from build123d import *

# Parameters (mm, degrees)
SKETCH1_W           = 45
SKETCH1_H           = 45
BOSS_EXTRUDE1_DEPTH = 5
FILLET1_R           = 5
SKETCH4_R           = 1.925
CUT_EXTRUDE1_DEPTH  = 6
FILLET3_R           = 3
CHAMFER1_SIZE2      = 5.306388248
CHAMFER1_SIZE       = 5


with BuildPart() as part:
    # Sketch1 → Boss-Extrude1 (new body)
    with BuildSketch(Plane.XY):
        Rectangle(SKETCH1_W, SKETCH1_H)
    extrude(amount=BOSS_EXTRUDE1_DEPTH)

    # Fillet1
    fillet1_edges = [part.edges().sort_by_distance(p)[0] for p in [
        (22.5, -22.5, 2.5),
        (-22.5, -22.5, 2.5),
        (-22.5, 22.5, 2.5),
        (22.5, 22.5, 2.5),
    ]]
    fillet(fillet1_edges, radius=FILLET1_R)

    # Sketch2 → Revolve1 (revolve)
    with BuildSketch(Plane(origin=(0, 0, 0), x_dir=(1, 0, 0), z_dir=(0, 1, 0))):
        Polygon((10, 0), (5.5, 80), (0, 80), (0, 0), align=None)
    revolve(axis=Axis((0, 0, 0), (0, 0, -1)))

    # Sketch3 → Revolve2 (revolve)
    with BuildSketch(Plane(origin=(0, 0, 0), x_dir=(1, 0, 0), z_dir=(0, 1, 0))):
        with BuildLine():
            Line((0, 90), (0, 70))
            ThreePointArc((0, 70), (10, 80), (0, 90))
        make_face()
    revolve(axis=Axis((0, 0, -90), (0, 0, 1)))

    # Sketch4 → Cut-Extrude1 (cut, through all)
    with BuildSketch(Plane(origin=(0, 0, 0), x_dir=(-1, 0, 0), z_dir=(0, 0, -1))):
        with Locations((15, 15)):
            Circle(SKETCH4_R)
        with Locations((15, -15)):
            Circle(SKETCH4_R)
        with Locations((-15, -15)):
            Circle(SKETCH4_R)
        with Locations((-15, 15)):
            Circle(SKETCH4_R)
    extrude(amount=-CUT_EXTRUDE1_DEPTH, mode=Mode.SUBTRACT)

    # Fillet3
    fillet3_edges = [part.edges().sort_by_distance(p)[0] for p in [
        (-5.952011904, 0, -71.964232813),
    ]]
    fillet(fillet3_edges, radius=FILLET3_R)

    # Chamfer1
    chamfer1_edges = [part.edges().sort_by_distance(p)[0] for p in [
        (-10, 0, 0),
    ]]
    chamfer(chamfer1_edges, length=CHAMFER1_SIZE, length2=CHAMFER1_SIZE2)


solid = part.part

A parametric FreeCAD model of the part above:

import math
import FreeCAD as App
import Part
import Sketcher
from FreeCAD import Vector
Q = App.Units.Quantity


def edges_at(feature, points):
    """Names of the edges that pass closest to the given points."""
    edges = feature.Shape.Edges
    near = lambda p: min(range(len(edges)), key=lambda i: edges[i].distToShape(Part.Vertex(*p))[0])
    return sorted({f"Edge{near(p) + 1}" for p in points})

doc = App.newDocument("Part")
body = doc.addObject("PartDesign::Body", "Body")

sketch1 = body.newObject("Sketcher::SketchObject", "Sketch")
sketch1.AttachmentSupport = (doc.getObject("XY_Plane"), [""])
sketch1.MapMode = "FlatFace"
sketch1.addGeometry([
    Part.LineSegment(Vector(-22.5, 22.5, 0), Vector(-22.5, -22.5, 0)),
    Part.LineSegment(Vector(-22.5, -22.5, 0), Vector(22.5, -22.5, 0)),
    Part.LineSegment(Vector(22.5, -22.5, 0), Vector(22.5, 22.5, 0)),
    Part.LineSegment(Vector(22.5, 22.5, 0), Vector(-22.5, 22.5, 0)),
], False)
sketch1.addConstraint([
    Sketcher.Constraint("Coincident", 0, 2, 1, 1),
    Sketcher.Constraint("Coincident", 1, 2, 2, 1),
    Sketcher.Constraint("Coincident", 2, 2, 3, 1),
    Sketcher.Constraint("Coincident", 3, 2, 0, 1),
    Sketcher.Constraint("Vertical", 0),
    Sketcher.Constraint("Horizontal", 1),
    Sketcher.Constraint("Vertical", 2),
    Sketcher.Constraint("Horizontal", 3),
    Sketcher.Constraint("Symmetric", 0, 2, 2, 2, -1, 1),
    Sketcher.Constraint("Equal", 3, 0),
    Sketcher.Constraint("DistanceX", 1, 1, 1, 2, Q("45 mm")),
])
pad1 = body.newObject("PartDesign::Pad", "Pad")
pad1.Profile = sketch1
pad1.Length = 5
doc.recompute()

fillet = body.newObject("PartDesign::Fillet", "Fillet")
fillet.Base = (pad1, edges_at(pad1, [
    (22.5, -22.5, 2.5),
    (-22.5, -22.5, 2.5),
    (-22.5, 22.5, 2.5),
    (22.5, 22.5, 2.5),
]))
fillet.Radius = 5

sketch2 = body.newObject("Sketcher::SketchObject", "Sketch001")
sketch2.AttachmentSupport = (doc.getObject("XZ_Plane"), [""])
sketch2.MapMode = "FlatFace"
sketch2.addGeometry([
    Part.LineSegment(Vector(10, 0, 0), Vector(5.5, -80, 0)),
    Part.LineSegment(Vector(5.5, -80, 0), Vector(0, -80, 0)),
    Part.LineSegment(Vector(0, -80, 0), Vector(0, 0, 0)),
    Part.LineSegment(Vector(0, 0, 0), Vector(10, 0, 0)),
], False)
sketch2.addConstraint([
    Sketcher.Constraint("Coincident", 0, 2, 1, 1),
    Sketcher.Constraint("Coincident", 1, 2, 2, 1),
    Sketcher.Constraint("Coincident", 2, 2, 3, 1),
    Sketcher.Constraint("Coincident", 3, 2, 0, 1),
    Sketcher.Constraint("Horizontal", 1),
    Sketcher.Constraint("Vertical", 2),
    Sketcher.Constraint("Horizontal", 3),
    Sketcher.Constraint("Coincident", 2, 2, -1, 1),
    Sketcher.Constraint("DistanceX", 3, 1, 3, 2, Q("10 mm")),
    Sketcher.Constraint("DistanceY", 2, 1, 2, 2, Q("80 mm")),
    Sketcher.Constraint("DistanceX", 1, 2, 1, 1, Q("5.5 mm")),
])
revolution = body.newObject("PartDesign::Revolution", "Revolution")
revolution.Profile = sketch2
revolution.ReferenceAxis = (sketch2, ["V_Axis"])
revolution.Angle = 360

sketch3 = body.newObject("Sketcher::SketchObject", "Sketch002")
sketch3.AttachmentSupport = (doc.getObject("XZ_Plane"), [""])
sketch3.MapMode = "FlatFace"
sketch3.addGeometry([
    Part.LineSegment(Vector(0, -90, 0), Vector(0, -70, 0)),
    Part.ArcOfCircle(Part.Circle(Vector(0, -80, 0), Vector(0, 0, 1), 10), math.radians(-90), math.radians(90)),
], False)
sketch3.addConstraint([
    Sketcher.Constraint("Coincident", 0, 1, 1, 1),
    Sketcher.Constraint("Coincident", 1, 2, 0, 2),
    Sketcher.Constraint("Vertical", 0),
    Sketcher.Constraint("PointOnObject", 1, 3, -2),
    Sketcher.Constraint("PointOnObject", 0, 1, -2),
    Sketcher.Constraint("Radius", 1, Q("10 mm")),
    Sketcher.Constraint("DistanceY", 1, 3, -1, 1, Q("80 mm")),
])
revolution2 = body.newObject("PartDesign::Revolution", "Revolution001")
revolution2.Profile = sketch3
revolution2.ReferenceAxis = (sketch3, ["V_Axis"])
revolution2.Angle = 360

sketch4 = body.newObject("Sketcher::SketchObject", "Sketch003")
sketch4.AttachmentSupport = (doc.getObject("XY_Plane"), [""])
sketch4.MapMode = "FlatFace"
sketch4.addGeometry([
    Part.Circle(Vector(-15, 15, 0), Vector(0, 0, 1), 1.925),
    Part.Circle(Vector(-15, -15, 0), Vector(0, 0, 1), 1.925),
    Part.Circle(Vector(15, -15, 0), Vector(0, 0, 1), 1.925),
    Part.Circle(Vector(15, 15, 0), Vector(0, 0, 1), 1.925),
], False)
sketch4.addConstraint([
    Sketcher.Constraint("Equal", 0, 1),
    Sketcher.Constraint("Equal", 1, 2),
    Sketcher.Constraint("Equal", 2, 3),
    Sketcher.Constraint("Symmetric", 0, 3, 2, 3, -1, 1),
    Sketcher.Constraint("Symmetric", 1, 3, 3, 3, -1, 1),
    Sketcher.Constraint("Symmetric", 1, 3, 2, 3, -2),
    Sketcher.Constraint("Diameter", 0, Q("3.85 mm")),
    Sketcher.Constraint("DistanceX", 0, 3, -1, 1, Q("15 mm")),
    Sketcher.Constraint("DistanceY", -1, 1, 0, 3, Q("15 mm")),
])
pocket1 = body.newObject("PartDesign::Pocket", "Pocket")
pocket1.Profile = sketch4
pocket1.Type = "ThroughAll"
pocket1.Reversed = True
doc.recompute()

fillet2 = body.newObject("PartDesign::Fillet", "Fillet001")
fillet2.Base = (pocket1, edges_at(pocket1, [(-5.952, 0, -71.964)]))
fillet2.Radius = 3
doc.recompute()

chamfer = body.newObject("PartDesign::Chamfer", "Chamfer")
chamfer.Base = (fillet2, edges_at(fillet2, [(-10, 0, 0)]))
chamfer.ChamferType = "Two distances"
chamfer.Size = 5
chamfer.Size2 = 5.306388

doc.recompute()
